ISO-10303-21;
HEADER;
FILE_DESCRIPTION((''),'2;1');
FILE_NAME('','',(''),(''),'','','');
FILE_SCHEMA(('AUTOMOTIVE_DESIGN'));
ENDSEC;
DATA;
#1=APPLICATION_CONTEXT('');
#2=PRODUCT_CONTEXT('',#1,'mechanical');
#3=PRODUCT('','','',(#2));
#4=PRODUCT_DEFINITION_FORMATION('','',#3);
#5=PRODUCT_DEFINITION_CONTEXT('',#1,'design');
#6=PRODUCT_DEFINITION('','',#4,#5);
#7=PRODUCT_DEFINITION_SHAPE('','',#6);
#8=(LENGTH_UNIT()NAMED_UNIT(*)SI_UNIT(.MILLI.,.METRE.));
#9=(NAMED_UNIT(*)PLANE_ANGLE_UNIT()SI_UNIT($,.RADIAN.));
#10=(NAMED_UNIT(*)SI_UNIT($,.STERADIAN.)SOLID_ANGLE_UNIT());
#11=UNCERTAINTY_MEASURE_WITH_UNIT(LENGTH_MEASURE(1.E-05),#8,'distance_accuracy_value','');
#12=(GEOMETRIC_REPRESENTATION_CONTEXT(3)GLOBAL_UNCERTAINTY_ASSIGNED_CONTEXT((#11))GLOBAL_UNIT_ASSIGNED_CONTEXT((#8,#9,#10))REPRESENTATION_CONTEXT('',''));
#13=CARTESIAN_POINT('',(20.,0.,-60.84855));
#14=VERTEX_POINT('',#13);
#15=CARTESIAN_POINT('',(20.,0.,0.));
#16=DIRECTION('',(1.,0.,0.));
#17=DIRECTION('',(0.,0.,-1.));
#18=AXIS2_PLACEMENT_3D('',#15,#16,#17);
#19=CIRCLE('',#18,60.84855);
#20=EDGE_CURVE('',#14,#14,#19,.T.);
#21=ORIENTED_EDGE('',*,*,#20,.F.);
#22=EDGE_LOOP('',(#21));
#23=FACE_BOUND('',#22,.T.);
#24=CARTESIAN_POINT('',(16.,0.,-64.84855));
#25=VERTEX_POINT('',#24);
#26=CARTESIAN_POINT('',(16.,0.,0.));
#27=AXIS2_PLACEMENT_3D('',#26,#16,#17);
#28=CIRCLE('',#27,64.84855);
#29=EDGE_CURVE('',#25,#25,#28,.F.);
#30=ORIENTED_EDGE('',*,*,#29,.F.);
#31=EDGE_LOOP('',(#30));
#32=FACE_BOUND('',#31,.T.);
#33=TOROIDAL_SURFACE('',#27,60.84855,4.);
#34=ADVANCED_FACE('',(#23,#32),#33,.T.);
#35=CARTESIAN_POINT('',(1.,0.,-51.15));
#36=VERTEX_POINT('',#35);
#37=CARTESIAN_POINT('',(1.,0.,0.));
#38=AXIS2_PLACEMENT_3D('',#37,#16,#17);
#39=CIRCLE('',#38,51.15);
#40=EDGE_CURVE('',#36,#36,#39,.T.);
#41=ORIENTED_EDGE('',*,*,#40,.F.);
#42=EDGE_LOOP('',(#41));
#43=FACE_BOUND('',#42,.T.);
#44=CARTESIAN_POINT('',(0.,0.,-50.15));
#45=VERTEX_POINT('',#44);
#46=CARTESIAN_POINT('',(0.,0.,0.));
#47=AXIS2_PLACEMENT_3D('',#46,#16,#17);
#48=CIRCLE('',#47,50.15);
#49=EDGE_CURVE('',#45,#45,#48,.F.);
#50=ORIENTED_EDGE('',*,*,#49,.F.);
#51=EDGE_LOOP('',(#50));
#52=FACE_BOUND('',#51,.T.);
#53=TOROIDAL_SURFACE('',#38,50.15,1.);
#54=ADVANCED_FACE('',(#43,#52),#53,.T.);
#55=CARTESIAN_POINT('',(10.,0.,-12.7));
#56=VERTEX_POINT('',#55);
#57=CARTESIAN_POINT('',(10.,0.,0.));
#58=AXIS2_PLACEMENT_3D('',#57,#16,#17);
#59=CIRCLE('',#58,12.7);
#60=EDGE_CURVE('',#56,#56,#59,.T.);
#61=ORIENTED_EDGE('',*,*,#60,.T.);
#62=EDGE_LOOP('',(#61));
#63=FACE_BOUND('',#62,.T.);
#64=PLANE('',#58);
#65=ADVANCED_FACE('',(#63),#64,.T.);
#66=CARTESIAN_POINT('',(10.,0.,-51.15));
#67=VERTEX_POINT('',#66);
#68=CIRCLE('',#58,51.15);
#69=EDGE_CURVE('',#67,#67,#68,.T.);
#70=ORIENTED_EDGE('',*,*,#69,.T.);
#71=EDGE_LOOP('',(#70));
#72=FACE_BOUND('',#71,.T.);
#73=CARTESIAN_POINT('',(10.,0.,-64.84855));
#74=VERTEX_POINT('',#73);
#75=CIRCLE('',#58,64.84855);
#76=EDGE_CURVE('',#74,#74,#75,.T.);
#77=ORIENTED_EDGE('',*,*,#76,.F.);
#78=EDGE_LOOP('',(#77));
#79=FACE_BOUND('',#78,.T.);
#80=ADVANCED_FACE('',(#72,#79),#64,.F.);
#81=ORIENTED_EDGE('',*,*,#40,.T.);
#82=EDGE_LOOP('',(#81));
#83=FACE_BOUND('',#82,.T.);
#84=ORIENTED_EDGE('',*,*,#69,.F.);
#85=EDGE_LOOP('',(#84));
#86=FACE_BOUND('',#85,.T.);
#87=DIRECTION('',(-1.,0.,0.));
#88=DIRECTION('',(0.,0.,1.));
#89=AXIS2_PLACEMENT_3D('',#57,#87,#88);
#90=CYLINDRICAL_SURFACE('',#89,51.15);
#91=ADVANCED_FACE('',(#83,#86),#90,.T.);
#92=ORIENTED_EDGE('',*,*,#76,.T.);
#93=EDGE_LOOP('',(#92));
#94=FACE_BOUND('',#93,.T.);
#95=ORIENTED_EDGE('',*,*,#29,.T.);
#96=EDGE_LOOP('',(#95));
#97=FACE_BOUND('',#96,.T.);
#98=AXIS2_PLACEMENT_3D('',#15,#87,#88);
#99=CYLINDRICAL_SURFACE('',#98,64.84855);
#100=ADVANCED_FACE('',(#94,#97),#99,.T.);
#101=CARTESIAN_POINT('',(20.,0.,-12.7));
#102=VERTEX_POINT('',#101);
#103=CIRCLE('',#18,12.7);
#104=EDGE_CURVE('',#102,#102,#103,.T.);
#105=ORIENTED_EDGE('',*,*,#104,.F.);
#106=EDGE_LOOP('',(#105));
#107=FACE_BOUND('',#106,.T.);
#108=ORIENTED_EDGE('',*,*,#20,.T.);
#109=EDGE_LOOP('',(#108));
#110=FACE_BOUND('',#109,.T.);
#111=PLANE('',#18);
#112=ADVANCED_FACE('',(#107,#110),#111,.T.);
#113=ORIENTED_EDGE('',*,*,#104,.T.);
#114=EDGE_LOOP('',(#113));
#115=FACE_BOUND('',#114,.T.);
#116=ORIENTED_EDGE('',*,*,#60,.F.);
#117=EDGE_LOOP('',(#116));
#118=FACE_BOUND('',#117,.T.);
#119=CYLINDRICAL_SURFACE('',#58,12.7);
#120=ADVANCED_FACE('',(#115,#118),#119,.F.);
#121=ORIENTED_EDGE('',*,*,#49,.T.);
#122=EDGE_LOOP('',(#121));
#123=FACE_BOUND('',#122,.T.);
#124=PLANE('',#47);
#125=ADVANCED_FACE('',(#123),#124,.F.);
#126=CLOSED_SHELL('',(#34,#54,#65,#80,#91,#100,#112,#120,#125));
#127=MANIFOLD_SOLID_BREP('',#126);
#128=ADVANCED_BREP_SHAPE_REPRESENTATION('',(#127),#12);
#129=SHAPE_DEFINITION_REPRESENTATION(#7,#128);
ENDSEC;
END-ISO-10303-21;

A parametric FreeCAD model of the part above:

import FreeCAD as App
import Part
import Sketcher
from FreeCAD import Vector
Q = App.Units.Quantity


def edges_at(feature, points):
    """Names of the edges that pass closest to the given points."""
    edges = feature.Shape.Edges
    near = lambda p: min(range(len(edges)), key=lambda i: edges[i].distToShape(Part.Vertex(*p))[0])
    return sorted({f"Edge{near(p) + 1}" for p in points})

doc = App.newDocument("Part")
body = doc.addObject("PartDesign::Body", "Body")

# Sketch on YZ plane
sketch1 = body.newObject("Sketcher::SketchObject", "Sketch")
sketch1.AttachmentSupport = (doc.getObject("YZ_Plane"), [""])
sketch1.MapMode = "FlatFace"
sketch1.addGeometry(Part.Circle(Vector(0, 0, 0), Vector(0, 0, 1), 51), False)
sketch1.addConstraint(Sketcher.Constraint("Coincident", 0, 3, -1, 1))
sketch1.addConstraint(Sketcher.Constraint("Diameter", 0, Q("102.3 mm")))
pad1 = body.newObject("PartDesign::Pad", "Pad")
pad1.Profile = sketch1
pad1.Length = 10

# Sketch on YZ plane
sketch2 = body.newObject("Sketcher::SketchObject", "Sketch001")
sketch2.AttachmentSupport = (doc.getObject("YZ_Plane"), [""])
sketch2.MapMode = "FlatFace"
sketch2.AttachmentOffset = App.Placement(Vector(0, 0, 10), App.Rotation())
sketch2.addGeometry(Part.Circle(Vector(0, 0, 0), Vector(0, 0, 1), 65), False)
sketch2.addConstraint(Sketcher.Constraint("Coincident", 0, 3, -1, 1))
sketch2.addConstraint(Sketcher.Constraint("Diameter", 0, Q("129.697101 mm")))
pad2 = body.newObject("PartDesign::Pad", "Pad001")
pad2.Profile = sketch2
pad2.Length = 10

# Sketch on YZ plane
sketch3 = body.newObject("Sketcher::SketchObject", "Sketch002")
sketch3.AttachmentSupport = (doc.getObject("YZ_Plane"), [""])
sketch3.MapMode = "FlatFace"
sketch3.AttachmentOffset = App.Placement(Vector(0, 0, 20), App.Rotation())
sketch3.addGeometry(Part.Circle(Vector(0, 0, 0), Vector(0, 0, 1), 13), False)
sketch3.addConstraint(Sketcher.Constraint("Coincident", 0, 3, -1, 1))
sketch3.addConstraint(Sketcher.Constraint("Diameter", 0, Q("25.4 mm")))
pocket1 = body.newObject("PartDesign::Pocket", "Pocket")
pocket1.Profile = sketch3
pocket1.Length = 10
doc.recompute()

fillet = body.newObject("PartDesign::Fillet", "Fillet")
fillet.Base = (pocket1, edges_at(pocket1, [(0, 0, 51.15)]))
fillet.Radius = 1
doc.recompute()

fillet2 = body.newObject("PartDesign::Fillet", "Fillet001")
fillet2.Base = (fillet, edges_at(fillet, [(20, 0, 64.849)]))
fillet2.Radius = 4

doc.recompute()
